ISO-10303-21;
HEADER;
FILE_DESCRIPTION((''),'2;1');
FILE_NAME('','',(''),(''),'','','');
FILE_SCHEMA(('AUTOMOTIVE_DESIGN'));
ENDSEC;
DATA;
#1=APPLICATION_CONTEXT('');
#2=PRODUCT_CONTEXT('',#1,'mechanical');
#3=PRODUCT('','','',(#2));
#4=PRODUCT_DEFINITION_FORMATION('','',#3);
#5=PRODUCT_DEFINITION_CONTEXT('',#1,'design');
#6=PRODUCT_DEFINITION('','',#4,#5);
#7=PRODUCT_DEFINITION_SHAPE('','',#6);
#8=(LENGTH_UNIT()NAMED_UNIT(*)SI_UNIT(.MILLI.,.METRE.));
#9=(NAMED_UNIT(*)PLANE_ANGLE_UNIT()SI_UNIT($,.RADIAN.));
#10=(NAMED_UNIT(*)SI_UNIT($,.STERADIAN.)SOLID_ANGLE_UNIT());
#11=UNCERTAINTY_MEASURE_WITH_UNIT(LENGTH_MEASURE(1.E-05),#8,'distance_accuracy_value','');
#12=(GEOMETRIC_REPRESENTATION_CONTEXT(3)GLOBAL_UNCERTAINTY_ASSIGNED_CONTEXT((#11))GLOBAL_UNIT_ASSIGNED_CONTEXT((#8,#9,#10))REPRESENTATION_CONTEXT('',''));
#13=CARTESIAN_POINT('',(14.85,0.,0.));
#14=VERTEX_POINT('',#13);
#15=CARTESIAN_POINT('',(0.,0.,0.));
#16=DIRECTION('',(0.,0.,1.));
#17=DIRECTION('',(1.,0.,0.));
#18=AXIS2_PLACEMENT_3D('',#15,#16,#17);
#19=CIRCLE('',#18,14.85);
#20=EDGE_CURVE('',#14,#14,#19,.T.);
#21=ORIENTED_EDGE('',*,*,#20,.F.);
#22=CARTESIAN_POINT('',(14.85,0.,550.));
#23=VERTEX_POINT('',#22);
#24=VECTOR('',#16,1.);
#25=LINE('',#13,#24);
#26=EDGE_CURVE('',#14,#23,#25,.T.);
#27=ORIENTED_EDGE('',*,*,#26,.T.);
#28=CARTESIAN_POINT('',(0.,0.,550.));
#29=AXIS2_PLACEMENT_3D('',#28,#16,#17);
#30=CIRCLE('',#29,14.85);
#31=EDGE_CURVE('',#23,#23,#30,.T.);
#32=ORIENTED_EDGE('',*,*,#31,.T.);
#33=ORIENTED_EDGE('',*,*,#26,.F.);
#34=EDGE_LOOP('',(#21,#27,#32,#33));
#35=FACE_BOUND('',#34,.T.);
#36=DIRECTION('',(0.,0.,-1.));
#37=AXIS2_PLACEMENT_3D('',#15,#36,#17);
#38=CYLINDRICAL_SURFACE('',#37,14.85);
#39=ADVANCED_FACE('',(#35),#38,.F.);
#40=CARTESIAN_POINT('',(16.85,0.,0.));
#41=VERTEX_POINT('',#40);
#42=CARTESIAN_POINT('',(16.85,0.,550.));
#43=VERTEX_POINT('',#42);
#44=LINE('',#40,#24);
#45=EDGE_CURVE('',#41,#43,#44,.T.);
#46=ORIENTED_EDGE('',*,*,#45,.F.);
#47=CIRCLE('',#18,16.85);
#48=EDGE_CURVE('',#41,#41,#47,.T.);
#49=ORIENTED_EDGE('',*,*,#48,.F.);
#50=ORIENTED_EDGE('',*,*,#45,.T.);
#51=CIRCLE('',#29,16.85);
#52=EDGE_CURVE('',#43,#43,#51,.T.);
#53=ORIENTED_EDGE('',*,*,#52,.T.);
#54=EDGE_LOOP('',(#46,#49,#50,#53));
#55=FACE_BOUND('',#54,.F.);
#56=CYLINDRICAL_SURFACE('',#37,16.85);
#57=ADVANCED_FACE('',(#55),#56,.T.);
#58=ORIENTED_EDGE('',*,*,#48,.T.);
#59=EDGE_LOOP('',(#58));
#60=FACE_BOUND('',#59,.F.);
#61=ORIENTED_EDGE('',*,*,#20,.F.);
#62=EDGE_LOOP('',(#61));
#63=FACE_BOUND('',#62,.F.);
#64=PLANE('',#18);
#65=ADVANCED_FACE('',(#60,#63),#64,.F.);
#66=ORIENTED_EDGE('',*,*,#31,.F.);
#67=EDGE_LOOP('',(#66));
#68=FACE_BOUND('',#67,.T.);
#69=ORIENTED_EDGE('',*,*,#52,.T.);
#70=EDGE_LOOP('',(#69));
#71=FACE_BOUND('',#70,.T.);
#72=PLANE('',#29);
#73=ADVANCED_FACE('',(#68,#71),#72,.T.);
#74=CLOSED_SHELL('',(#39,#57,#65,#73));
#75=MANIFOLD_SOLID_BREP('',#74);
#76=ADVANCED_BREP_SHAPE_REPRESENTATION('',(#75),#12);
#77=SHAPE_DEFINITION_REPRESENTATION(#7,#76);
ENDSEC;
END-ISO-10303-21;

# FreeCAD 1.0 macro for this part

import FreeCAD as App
import Part
import Sketcher

V = App.Vector

doc = App.newDocument("Part")
body = doc.addObject("PartDesign::Body", "Body")

sketch1 = body.newObject("Sketcher::SketchObject", "Sketch")
sketch1.AttachmentSupport = (doc.getObject("XY_Plane"), [""])
sketch1.MapMode = "FlatFace"
sketch1.addGeometry([
    Part.Circle(V(0, 0, 0), V(0, 0, 1), 16.85),
    Part.Circle(V(0, 0, 0), V(0, 0, 1), 14.85),
], False)
sketch1.addConstraint([
    Sketcher.Constraint("Coincident", 0, 3, -1, 1),
    Sketcher.Constraint("Coincident", 1, 3, -1, 1),
    Sketcher.Constraint("Diameter", 0, 33.7),
    Sketcher.Constraint("Diameter", 1, 29.7),
])
pad1 = body.newObject("PartDesign::Pad", "Pad")
pad1.Profile = sketch1
pad1.Length = 550

doc.recompute()
